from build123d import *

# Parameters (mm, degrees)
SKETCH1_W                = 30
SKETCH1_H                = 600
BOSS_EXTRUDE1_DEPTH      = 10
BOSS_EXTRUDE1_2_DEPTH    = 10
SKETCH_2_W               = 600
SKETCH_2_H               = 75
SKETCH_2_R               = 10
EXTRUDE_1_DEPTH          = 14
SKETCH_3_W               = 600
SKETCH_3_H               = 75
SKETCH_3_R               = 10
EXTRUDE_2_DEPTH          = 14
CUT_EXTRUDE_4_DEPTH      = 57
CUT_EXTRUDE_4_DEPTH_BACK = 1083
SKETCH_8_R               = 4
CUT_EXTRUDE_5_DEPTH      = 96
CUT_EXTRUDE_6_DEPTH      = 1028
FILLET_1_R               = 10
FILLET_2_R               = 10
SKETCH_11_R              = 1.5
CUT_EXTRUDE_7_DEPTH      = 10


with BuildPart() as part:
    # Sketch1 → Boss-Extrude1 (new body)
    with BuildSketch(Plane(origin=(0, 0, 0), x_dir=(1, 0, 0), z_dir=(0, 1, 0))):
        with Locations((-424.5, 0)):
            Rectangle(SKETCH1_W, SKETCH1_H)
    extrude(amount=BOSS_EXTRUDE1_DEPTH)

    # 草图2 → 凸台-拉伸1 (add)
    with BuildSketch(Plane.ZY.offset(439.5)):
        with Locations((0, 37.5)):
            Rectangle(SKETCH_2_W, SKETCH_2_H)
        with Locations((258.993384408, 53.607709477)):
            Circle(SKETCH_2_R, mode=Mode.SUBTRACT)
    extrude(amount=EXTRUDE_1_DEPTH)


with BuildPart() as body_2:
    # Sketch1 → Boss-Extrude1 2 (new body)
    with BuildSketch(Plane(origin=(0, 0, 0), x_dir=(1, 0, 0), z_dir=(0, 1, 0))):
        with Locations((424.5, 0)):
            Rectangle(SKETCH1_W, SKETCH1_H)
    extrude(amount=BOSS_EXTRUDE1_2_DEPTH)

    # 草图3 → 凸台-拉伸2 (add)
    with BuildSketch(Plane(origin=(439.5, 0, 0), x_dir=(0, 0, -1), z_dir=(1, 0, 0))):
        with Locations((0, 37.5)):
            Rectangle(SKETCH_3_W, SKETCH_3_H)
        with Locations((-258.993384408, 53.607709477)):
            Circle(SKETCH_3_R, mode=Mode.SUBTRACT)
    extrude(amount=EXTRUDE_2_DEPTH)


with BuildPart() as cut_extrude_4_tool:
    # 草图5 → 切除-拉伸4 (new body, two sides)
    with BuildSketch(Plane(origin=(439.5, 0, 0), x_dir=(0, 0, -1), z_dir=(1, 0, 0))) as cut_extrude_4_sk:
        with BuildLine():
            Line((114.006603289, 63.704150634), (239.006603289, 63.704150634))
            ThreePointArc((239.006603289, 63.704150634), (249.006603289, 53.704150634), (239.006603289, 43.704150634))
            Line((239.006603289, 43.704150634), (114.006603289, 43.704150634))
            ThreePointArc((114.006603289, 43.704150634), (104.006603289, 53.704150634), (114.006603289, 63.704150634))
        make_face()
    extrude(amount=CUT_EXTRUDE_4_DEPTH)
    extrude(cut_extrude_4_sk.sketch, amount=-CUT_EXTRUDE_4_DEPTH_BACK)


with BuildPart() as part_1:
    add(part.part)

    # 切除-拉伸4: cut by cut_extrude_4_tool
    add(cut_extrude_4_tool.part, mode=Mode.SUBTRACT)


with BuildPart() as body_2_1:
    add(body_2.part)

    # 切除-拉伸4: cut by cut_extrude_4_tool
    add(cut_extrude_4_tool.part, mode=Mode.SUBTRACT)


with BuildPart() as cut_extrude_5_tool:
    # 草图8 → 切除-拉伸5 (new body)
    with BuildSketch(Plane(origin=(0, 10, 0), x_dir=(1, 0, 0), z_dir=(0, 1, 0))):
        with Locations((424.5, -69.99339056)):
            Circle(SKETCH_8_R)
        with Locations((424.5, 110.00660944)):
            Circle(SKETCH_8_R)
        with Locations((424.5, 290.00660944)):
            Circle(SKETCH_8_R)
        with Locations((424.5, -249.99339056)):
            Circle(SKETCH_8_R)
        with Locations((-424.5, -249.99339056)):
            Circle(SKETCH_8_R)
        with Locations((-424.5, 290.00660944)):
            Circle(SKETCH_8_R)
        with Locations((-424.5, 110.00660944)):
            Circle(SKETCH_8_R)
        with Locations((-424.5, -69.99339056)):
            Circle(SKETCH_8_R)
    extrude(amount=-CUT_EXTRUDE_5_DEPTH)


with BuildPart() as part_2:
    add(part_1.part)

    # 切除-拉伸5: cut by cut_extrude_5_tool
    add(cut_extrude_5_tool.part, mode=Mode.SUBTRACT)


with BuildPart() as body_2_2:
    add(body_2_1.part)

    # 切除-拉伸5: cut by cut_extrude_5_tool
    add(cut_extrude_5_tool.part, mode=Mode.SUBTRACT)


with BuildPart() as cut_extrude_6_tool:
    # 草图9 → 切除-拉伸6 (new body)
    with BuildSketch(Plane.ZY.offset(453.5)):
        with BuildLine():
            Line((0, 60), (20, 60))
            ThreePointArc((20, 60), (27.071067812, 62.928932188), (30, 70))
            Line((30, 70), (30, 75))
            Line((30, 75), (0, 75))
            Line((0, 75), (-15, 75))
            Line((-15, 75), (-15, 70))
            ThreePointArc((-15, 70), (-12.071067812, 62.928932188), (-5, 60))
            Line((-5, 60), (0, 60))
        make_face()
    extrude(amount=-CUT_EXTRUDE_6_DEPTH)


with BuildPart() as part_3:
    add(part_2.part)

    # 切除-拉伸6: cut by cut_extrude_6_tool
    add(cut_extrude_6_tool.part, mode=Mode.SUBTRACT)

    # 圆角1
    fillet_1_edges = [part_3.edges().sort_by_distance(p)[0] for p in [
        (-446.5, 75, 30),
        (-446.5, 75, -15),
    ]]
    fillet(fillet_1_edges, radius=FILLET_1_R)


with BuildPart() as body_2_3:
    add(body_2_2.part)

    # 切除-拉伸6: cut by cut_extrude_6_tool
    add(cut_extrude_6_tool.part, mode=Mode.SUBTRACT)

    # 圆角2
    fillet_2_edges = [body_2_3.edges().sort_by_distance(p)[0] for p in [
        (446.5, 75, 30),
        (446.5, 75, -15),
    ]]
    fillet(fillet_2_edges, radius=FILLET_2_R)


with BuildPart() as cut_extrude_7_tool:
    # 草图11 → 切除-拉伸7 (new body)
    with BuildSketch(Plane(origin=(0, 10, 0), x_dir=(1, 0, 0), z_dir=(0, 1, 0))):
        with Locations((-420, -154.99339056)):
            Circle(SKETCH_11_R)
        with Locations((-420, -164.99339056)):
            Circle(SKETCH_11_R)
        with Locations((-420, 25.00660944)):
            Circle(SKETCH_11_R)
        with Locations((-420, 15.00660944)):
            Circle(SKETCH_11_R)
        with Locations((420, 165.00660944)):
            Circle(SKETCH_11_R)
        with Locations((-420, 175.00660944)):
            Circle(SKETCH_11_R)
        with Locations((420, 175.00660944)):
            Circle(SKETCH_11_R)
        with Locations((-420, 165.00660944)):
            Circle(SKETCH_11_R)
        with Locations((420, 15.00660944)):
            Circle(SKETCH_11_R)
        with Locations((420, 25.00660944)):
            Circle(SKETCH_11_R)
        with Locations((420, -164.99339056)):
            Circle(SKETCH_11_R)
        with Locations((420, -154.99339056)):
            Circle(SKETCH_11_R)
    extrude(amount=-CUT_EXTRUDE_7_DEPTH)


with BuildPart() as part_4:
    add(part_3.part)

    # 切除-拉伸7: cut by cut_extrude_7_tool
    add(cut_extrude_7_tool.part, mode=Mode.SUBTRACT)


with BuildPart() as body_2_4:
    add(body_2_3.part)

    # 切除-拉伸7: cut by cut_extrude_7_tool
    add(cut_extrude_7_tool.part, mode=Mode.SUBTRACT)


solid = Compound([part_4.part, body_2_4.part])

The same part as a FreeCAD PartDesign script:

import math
import FreeCAD as App
import Part
import Sketcher
from FreeCAD import Vector


def edges_at(feature, points):
    """Names of the edges that pass closest to the given points."""
    edges = feature.Shape.Edges
    near = lambda p: min(range(len(edges)), key=lambda i: edges[i].distToShape(Part.Vertex(*p))[0])
    return sorted({f"Edge{near(p) + 1}" for p in points})


def add_polygon(sketch, points):
    """Adds a closed chain of lines whose ends are joined by coincident constraints."""
    first, n = sketch.GeometryCount, len(points)
    for a, b in zip(points, points[1:] + points[:1]):
        sketch.addGeometry(Part.LineSegment(App.Vector(*a, 0), App.Vector(*b, 0)), False)
    for i in range(n):
        sketch.addConstraint(Sketcher.Constraint("Coincident", first + i, 2, first + (i + 1) % n, 1))

doc = App.newDocument("Part")
body = doc.addObject("PartDesign::Body", "Body")

sketch1 = doc.addObject("Sketcher::SketchObject", "Sketch")
body.addObject(sketch1)
sketch1.AttachmentSupport = (doc.XZ_Plane, [""])
sketch1.MapMode = "FlatFace"
add_polygon(sketch1, [(-440, -300), (-440, 300), (-410, 300), (-410, -300)])
sketch1.addConstraint([
    Sketcher.Constraint("Vertical", 0),
    Sketcher.Constraint("Horizontal", 1),
    Sketcher.Constraint("Vertical", 2),
    Sketcher.Constraint("Horizontal", 3),
    Sketcher.Constraint("DistanceX", 1, 1, 1, 2, 30.0),
    Sketcher.Constraint("DistanceY", 0, 1, 0, 2, 600.0),
    Sketcher.Constraint("DistanceY", -1, 1, 0, 2, 300.0),
    Sketcher.Constraint("DistanceX", 0, 2, -1, 1, 439.5),
])
pad1 = doc.addObject("PartDesign::Pad", "Pad")
body.addObject(pad1)
pad1.Profile = sketch1
pad1.Length = 10
pad1.Reversed = True

sketch2 = doc.addObject("Sketcher::SketchObject", "Sketch001")
body.addObject(sketch2)
sketch2.AttachmentSupport = (doc.YZ_Plane, [""])
sketch2.MapMode = "FlatFace"
sketch2.AttachmentOffset = App.Placement(Vector(0, 0, -439.5), App.Rotation())
add_polygon(sketch2, [(75, -300), (0, -300), (0, 300), (75, 300)])
sketch2.addGeometry(Part.Circle(Vector(54, 259, 0), Vector(0, 0, 1), 10), False)
sketch2.addConstraint([
    Sketcher.Constraint("Horizontal", 0),
    Sketcher.Constraint("Vertical", 1),
    Sketcher.Constraint("Horizontal", 2),
    Sketcher.Constraint("Vertical", 3),
    Sketcher.Constraint("Symmetric", 0, 2, 1, 2, -1, 1),
    Sketcher.Constraint("Diameter", 4, 20.0),
    Sketcher.Constraint("DistanceX", 0, 2, 0, 1, 75.0),
    Sketcher.Constraint("DistanceY", 1, 1, 1, 2, 600.0),
    Sketcher.Constraint("DistanceX", -1, 1, 4, 3, 53.607709),
    Sketcher.Constraint("DistanceY", -1, 1, 4, 3, 258.993384),
])
pad2 = doc.addObject("PartDesign::Pad", "Pad001")
body.addObject(pad2)
pad2.Profile = sketch2
pad2.Length = 14
pad2.Reversed = True
body2 = doc.addObject("PartDesign::Body", "Body001")

sketch3 = doc.addObject("Sketcher::SketchObject", "Sketch002")
body2.addObject(sketch3)
sketch3.AttachmentSupport = (doc.getObject("XZ_Plane001"), [""])
sketch3.MapMode = "FlatFace"
add_polygon(sketch3, [(410, -300), (410, 300), (440, 300), (440, -300)])
sketch3.addConstraint([
    Sketcher.Constraint("Vertical", 0),
    Sketcher.Constraint("Horizontal", 1),
    Sketcher.Constraint("Vertical", 2),
    Sketcher.Constraint("Horizontal", 3),
    Sketcher.Constraint("DistanceX", 1, 1, 1, 2, 30.0),
    Sketcher.Constraint("DistanceY", 0, 1, 0, 2, 600.0),
    Sketcher.Constraint("DistanceY", -1, 1, 0, 2, 300.0),
    Sketcher.Constraint("DistanceX", -1, 1, 0, 2, 409.5),
])
pad3 = doc.addObject("PartDesign::Pad", "Pad002")
body2.addObject(pad3)
pad3.Profile = sketch3
pad3.Length = 10
pad3.Reversed = True

sketch4 = doc.addObject("Sketcher::SketchObject", "Sketch003")
body2.addObject(sketch4)
sketch4.AttachmentSupport = (doc.getObject("YZ_Plane001"), [""])
sketch4.MapMode = "FlatFace"
sketch4.AttachmentOffset = App.Placement(Vector(0, 0, 439.5), App.Rotation())
add_polygon(sketch4, [(75, 300), (0, 300), (0, -300), (75, -300)])
sketch4.addGeometry(Part.Circle(Vector(54, 259, 0), Vector(0, 0, 1), 10), False)
sketch4.addConstraint([
    Sketcher.Constraint("Horizontal", 0),
    Sketcher.Constraint("Vertical", 1),
    Sketcher.Constraint("Horizontal", 2),
    Sketcher.Constraint("Vertical", 3),
    Sketcher.Constraint("Symmetric", 0, 2, 1, 2, -1, 1),
    Sketcher.Constraint("Diameter", 4, 20.0),
    Sketcher.Constraint("DistanceX", 0, 2, 0, 1, 75.0),
    Sketcher.Constraint("DistanceY", 1, 2, 1, 1, 600.0),
    Sketcher.Constraint("DistanceX", -1, 1, 4, 3, 53.607709),
    Sketcher.Constraint("DistanceY", -1, 1, 4, 3, 258.993384),
])
pad4 = doc.addObject("PartDesign::Pad", "Pad003")
body2.addObject(pad4)
pad4.Profile = sketch4
pad4.Length = 14
body3 = doc.addObject("PartDesign::Body", "Body002")

sketch5 = doc.addObject("Sketcher::SketchObject", "Sketch004")
body3.addObject(sketch5)
sketch5.AttachmentSupport = (doc.getObject("YZ_Plane002"), [""])
sketch5.MapMode = "FlatFace"
sketch5.AttachmentOffset = App.Placement(Vector(0, 0, 439.5), App.Rotation())
sketch5.addGeometry([
    Part.LineSegment(Vector(64, -239, 0), Vector(64, -114, 0)),
    Part.ArcOfCircle(Part.Circle(Vector(54, -114, 0), Vector(0, 0, 1), 10), math.radians(0), math.radians(180)),
    Part.LineSegment(Vector(44, -114, 0), Vector(44, -239, 0)),
    Part.ArcOfCircle(Part.Circle(Vector(54, -239, 0), Vector(0, 0, 1), 10), math.radians(180), math.radians(360)),
], False)
sketch5.addConstraint([
    Sketcher.Constraint("Tangent", 0, 2, 1, 1),
    Sketcher.Constraint("Tangent", 1, 2, 2, 1),
    Sketcher.Constraint("Tangent", 2, 2, 3, 1),
    Sketcher.Constraint("Tangent", 3, 2, 0, 1),
    Sketcher.Constraint("Vertical", 0),
    Sketcher.Constraint("Vertical", 2),
    Sketcher.Constraint("Radius", 1, 10.0),
    Sketcher.Constraint("DistanceY", 0, 1, 0, 2, 125.0),
    Sketcher.Constraint("DistanceX", -1, 1, 1, 3, 53.704151),
    Sketcher.Constraint("DistanceY", 1, 3, -1, 1, 114.006603),
])
pad5 = doc.addObject("PartDesign::Pad", "Pad004")
body3.addObject(pad5)
pad5.Profile = sketch5
pad5.Type = "TwoLengths"
pad5.Length = 57
pad5.Length2 = 1083
doc.recompute()

body4 = doc.addObject("PartDesign::Body", "Body003")
body4.BaseFeature = body3
boolean = doc.addObject("PartDesign::Boolean", "Boolean")
body.addObject(boolean)
boolean.Type = "Cut"
boolean.addObjects([body4])
doc.recompute()

boolean2 = doc.addObject("PartDesign::Boolean", "Boolean001")
body2.addObject(boolean2)
boolean2.Type = "Cut"
boolean2.addObjects([body3])
body5 = doc.addObject("PartDesign::Body", "Body004")
body5.AllowCompound = True

sketch6 = doc.addObject("Sketcher::SketchObject", "Sketch005")
body5.addObject(sketch6)
sketch6.AttachmentSupport = (doc.getObject("XZ_Plane004"), [""])
sketch6.MapMode = "FlatFace"
sketch6.AttachmentOffset = App.Placement(Vector(0, 0, -10), App.Rotation())
sketch6.addGeometry([
    Part.Circle(Vector(424.5, 70, 0), Vector(0, 0, 1), 4),
    Part.Circle(Vector(424.5, -110, 0), Vector(0, 0, 1), 4),
    Part.Circle(Vector(424.5, -290, 0), Vector(0, 0, 1), 4),
    Part.Circle(Vector(424.5, 250, 0), Vector(0, 0, 1), 4),
    Part.Circle(Vector(-424.5, 250, 0), Vector(0, 0, 1), 4),
    Part.Circle(Vector(-424.5, -290, 0), Vector(0, 0, 1), 4),
    Part.Circle(Vector(-424.5, -110, 0), Vector(0, 0, 1), 4),
    Part.Circle(Vector(-424.5, 70, 0), Vector(0, 0, 1), 4),
], False)
sketch6.addConstraint([
    Sketcher.Constraint("Equal", 0, 1),
    Sketcher.Constraint("Equal", 1, 2),
    Sketcher.Constraint("Equal", 2, 3),
    Sketcher.Constraint("Equal", 3, 4),
    Sketcher.Constraint("Equal", 4, 5),
    Sketcher.Constraint("Equal", 5, 6),
    Sketcher.Constraint("Equal", 6, 7),
    Sketcher.Constraint("Symmetric", 3, 3, 4, 3, -2),
    Sketcher.Constraint("Symmetric", 2, 3, 5, 3, -2),
    Sketcher.Constraint("Symmetric", 1, 3, 6, 3, -2),
    Sketcher.Constraint("Symmetric", 0, 3, 7, 3, -2),
    Sketcher.Constraint("Vertical", 0, 3, 1, 3),
    Sketcher.Constraint("Vertical", 1, 3, 2, 3),
    Sketcher.Constraint("Vertical", 2, 3, 3, 3),
    Sketcher.Constraint("Diameter", 0, 8.0),
    Sketcher.Constraint("DistanceY", 1, 3, 0, 3, 180.0),
    Sketcher.Constraint("DistanceY", 2, 3, 1, 3, 180.0),
    Sketcher.Constraint("DistanceY", 0, 3, 3, 3, 180.0),
    Sketcher.Constraint("DistanceX", 4, 3, 3, 3, 849.0),
    Sketcher.Constraint("DistanceY", -1, 1, 0, 3, 69.993391),
])
pad6 = doc.addObject("PartDesign::Pad", "Pad005")
body5.addObject(pad6)
pad6.Profile = sketch6
pad6.Length = 96
doc.recompute()

body6 = doc.addObject("PartDesign::Body", "Body005")
body6.BaseFeature = body5
boolean3 = doc.addObject("PartDesign::Boolean", "Boolean002")
body.addObject(boolean3)
boolean3.Type = "Cut"
boolean3.addObjects([body6])
doc.recompute()

boolean4 = doc.addObject("PartDesign::Boolean", "Boolean003")
body2.addObject(boolean4)
boolean4.Type = "Cut"
boolean4.addObjects([body5])
body7 = doc.addObject("PartDesign::Body", "Body006")

sketch7 = doc.addObject("Sketcher::SketchObject", "Sketch006")
body7.addObject(sketch7)
sketch7.AttachmentSupport = (doc.getObject("YZ_Plane006"), [""])
sketch7.MapMode = "FlatFace"
sketch7.AttachmentOffset = App.Placement(Vector(0, 0, -453.5), App.Rotation())
sketch7.addGeometry([
    Part.ArcOfCircle(Part.Circle(Vector(70, 20, 0), Vector(0, 0, 1), 10), math.radians(90), math.radians(180)),
    Part.LineSegment(Vector(70, 30, 0), Vector(75, 30, 0)),
    Part.LineSegment(Vector(75, 30, 0), Vector(75, -15, 0)),
    Part.LineSegment(Vector(75, -15, 0), Vector(70, -15, 0)),
    Part.ArcOfCircle(Part.Circle(Vector(70, -5, 0), Vector(0, 0, 1), 10), math.radians(180), math.radians(270)),
    Part.LineSegment(Vector(60, -5, 0), Vector(60, 20, 0)),
], False)
sketch7.addConstraint([
    Sketcher.Constraint("Tangent", 0, 1, 1, 1),
    Sketcher.Constraint("Coincident", 1, 2, 2, 1),
    Sketcher.Constraint("Coincident", 2, 2, 3, 1),
    Sketcher.Constraint("Tangent", 3, 2, 4, 2),
    Sketcher.Constraint("Tangent", 4, 1, 5, 1),
    Sketcher.Constraint("Tangent", 5, 2, 0, 2),
    Sketcher.Constraint("Horizontal", 1),
    Sketcher.Constraint("Vertical", 2),
    Sketcher.Constraint("Horizontal", 3),
    Sketcher.Constraint("Vertical", 5),
    Sketcher.Constraint("Equal", 0, 4),
    Sketcher.Constraint("Radius", 0, 10.0),
    Sketcher.Constraint("DistanceX", 1, 1, 1, 2, 5.0),
    Sketcher.Constraint("DistanceY", 2, 2, 2, 1, 45.0),
    Sketcher.Constraint("DistanceX", -1, 1, 0, 3, 70.0),
    Sketcher.Constraint("DistanceY", -1, 1, 0, 3, 20.0),
])
pad7 = doc.addObject("PartDesign::Pad", "Pad006")
body7.addObject(pad7)
pad7.Profile = sketch7
pad7.Length = 1028
doc.recompute()

body8 = doc.addObject("PartDesign::Body", "Body007")
body8.BaseFeature = body7
boolean5 = doc.addObject("PartDesign::Boolean", "Boolean004")
body.addObject(boolean5)
boolean5.Type = "Cut"
boolean5.addObjects([body8])
doc.recompute()

fillet = doc.addObject("PartDesign::Fillet", "Fillet")
body.addObject(fillet)
fillet.Base = (boolean5, edges_at(boolean5, [(-446.5, 75, 30), (-446.5, 75, -15)]))
fillet.Radius = 10
doc.recompute()

boolean6 = doc.addObject("PartDesign::Boolean", "Boolean005")
body2.addObject(boolean6)
boolean6.Type = "Cut"
boolean6.addObjects([body7])
doc.recompute()

fillet2 = doc.addObject("PartDesign::Fillet", "Fillet001")
body2.addObject(fillet2)
fillet2.Base = (boolean6, edges_at(boolean6, [(446.5, 75, 30), (446.5, 75, -15)]))
fillet2.Radius = 10
body9 = doc.addObject("PartDesign::Body", "Body008")
body9.AllowCompound = True

sketch8 = doc.addObject("Sketcher::SketchObject", "Sketch007")
body9.addObject(sketch8)
sketch8.AttachmentSupport = (doc.getObject("XZ_Plane008"), [""])
sketch8.MapMode = "FlatFace"
sketch8.AttachmentOffset = App.Placement(Vector(0, 0, -10), App.Rotation())
sketch8.addGeometry([
    Part.Circle(Vector(-420, 155, 0), Vector(0, 0, 1), 1.5),
    Part.Circle(Vector(-420, 165, 0), Vector(0, 0, 1), 1.5),
    Part.Circle(Vector(-420, -25, 0), Vector(0, 0, 1), 1.5),
    Part.Circle(Vector(-420, -15, 0), Vector(0, 0, 1), 1.5),
    Part.Circle(Vector(420, -165, 0), Vector(0, 0, 1), 1.5),
    Part.Circle(Vector(-420, -175, 0), Vector(0, 0, 1), 1.5),
    Part.Circle(Vector(420, -175, 0), Vector(0, 0, 1), 1.5),
    Part.Circle(Vector(-420, -165, 0), Vector(0, 0, 1), 1.5),
    Part.Circle(Vector(420, -15, 0), Vector(0, 0, 1), 1.5),
    Part.Circle(Vector(420, -25, 0), Vector(0, 0, 1), 1.5),
    Part.Circle(Vector(420, 165, 0), Vector(0, 0, 1), 1.5),
    Part.Circle(Vector(420, 155, 0), Vector(0, 0, 1), 1.5),
], False)
sketch8.addConstraint([
    Sketcher.Constraint("Equal", 0, 1),
    Sketcher.Constraint("Equal", 1, 2),
    Sketcher.Constraint("Equal", 2, 3),
    Sketcher.Constraint("Equal", 3, 4),
    Sketcher.Constraint("Equal", 4, 5),
    Sketcher.Constraint("Equal", 5, 6),
    Sketcher.Constraint("Equal", 6, 7),
    Sketcher.Constraint("Equal", 7, 8),
    Sketcher.Constraint("Equal", 8, 9),
    Sketcher.Constraint("Equal", 9, 10),
    Sketcher.Constraint("Equal", 10, 11),
    Sketcher.Constraint("Symmetric", 5, 3, 6, 3, -2),
    Sketcher.Constraint("Symmetric", 4, 3, 7, 3, -2),
    Sketcher.Constraint("Symmetric", 3, 3, 8, 3, -2),
    Sketcher.Constraint("Symmetric", 2, 3, 9, 3, -2),
    Sketcher.Constraint("Symmetric", 1, 3, 10, 3, -2),
    Sketcher.Constraint("Symmetric", 0, 3, 11, 3, -2),
    Sketcher.Constraint("Vertical", 0, 3, 1, 3),
    Sketcher.Constraint("Vertical", 1, 3, 2, 3),
    Sketcher.Constraint("Vertical", 2, 3, 3, 3),
    Sketcher.Constraint("Vertical", 3, 3, 5, 3),
    Sketcher.Constraint("Vertical", 4, 3, 6, 3),
    Sketcher.Constraint("Diameter", 0, 3.0),
    Sketcher.Constraint("DistanceX", 0, 3, -1, 1, 420.0),
    Sketcher.Constraint("DistanceY", 0, 3, 1, 3, 10.0),
    Sketcher.Constraint("DistanceY", 2, 3, 0, 3, 180.0),
    Sketcher.Constraint("DistanceY", 2, 3, 3, 3, 10.0),
    Sketcher.Constraint("DistanceY", 4, 3, 2, 3, 140.0),
    Sketcher.Constraint("DistanceY", 5, 3, 2, 3, 150.0),
    Sketcher.Constraint("DistanceY", -1, 1, 0, 3, 154.993391),
])
pad8 = doc.addObject("PartDesign::Pad", "Pad007")
body9.addObject(pad8)
pad8.Profile = sketch8
pad8.Length = 10
doc.recompute()

body10 = doc.addObject("PartDesign::Body", "Body009")
body10.BaseFeature = body9
boolean7 = doc.addObject("PartDesign::Boolean", "Boolean006")
body.addObject(boolean7)
boolean7.Type = "Cut"
boolean7.addObjects([body10])
doc.recompute()

boolean8 = doc.addObject("PartDesign::Boolean", "Boolean007")
body2.addObject(boolean8)
boolean8.Type = "Cut"
boolean8.addObjects([body9])

doc.recompute()
